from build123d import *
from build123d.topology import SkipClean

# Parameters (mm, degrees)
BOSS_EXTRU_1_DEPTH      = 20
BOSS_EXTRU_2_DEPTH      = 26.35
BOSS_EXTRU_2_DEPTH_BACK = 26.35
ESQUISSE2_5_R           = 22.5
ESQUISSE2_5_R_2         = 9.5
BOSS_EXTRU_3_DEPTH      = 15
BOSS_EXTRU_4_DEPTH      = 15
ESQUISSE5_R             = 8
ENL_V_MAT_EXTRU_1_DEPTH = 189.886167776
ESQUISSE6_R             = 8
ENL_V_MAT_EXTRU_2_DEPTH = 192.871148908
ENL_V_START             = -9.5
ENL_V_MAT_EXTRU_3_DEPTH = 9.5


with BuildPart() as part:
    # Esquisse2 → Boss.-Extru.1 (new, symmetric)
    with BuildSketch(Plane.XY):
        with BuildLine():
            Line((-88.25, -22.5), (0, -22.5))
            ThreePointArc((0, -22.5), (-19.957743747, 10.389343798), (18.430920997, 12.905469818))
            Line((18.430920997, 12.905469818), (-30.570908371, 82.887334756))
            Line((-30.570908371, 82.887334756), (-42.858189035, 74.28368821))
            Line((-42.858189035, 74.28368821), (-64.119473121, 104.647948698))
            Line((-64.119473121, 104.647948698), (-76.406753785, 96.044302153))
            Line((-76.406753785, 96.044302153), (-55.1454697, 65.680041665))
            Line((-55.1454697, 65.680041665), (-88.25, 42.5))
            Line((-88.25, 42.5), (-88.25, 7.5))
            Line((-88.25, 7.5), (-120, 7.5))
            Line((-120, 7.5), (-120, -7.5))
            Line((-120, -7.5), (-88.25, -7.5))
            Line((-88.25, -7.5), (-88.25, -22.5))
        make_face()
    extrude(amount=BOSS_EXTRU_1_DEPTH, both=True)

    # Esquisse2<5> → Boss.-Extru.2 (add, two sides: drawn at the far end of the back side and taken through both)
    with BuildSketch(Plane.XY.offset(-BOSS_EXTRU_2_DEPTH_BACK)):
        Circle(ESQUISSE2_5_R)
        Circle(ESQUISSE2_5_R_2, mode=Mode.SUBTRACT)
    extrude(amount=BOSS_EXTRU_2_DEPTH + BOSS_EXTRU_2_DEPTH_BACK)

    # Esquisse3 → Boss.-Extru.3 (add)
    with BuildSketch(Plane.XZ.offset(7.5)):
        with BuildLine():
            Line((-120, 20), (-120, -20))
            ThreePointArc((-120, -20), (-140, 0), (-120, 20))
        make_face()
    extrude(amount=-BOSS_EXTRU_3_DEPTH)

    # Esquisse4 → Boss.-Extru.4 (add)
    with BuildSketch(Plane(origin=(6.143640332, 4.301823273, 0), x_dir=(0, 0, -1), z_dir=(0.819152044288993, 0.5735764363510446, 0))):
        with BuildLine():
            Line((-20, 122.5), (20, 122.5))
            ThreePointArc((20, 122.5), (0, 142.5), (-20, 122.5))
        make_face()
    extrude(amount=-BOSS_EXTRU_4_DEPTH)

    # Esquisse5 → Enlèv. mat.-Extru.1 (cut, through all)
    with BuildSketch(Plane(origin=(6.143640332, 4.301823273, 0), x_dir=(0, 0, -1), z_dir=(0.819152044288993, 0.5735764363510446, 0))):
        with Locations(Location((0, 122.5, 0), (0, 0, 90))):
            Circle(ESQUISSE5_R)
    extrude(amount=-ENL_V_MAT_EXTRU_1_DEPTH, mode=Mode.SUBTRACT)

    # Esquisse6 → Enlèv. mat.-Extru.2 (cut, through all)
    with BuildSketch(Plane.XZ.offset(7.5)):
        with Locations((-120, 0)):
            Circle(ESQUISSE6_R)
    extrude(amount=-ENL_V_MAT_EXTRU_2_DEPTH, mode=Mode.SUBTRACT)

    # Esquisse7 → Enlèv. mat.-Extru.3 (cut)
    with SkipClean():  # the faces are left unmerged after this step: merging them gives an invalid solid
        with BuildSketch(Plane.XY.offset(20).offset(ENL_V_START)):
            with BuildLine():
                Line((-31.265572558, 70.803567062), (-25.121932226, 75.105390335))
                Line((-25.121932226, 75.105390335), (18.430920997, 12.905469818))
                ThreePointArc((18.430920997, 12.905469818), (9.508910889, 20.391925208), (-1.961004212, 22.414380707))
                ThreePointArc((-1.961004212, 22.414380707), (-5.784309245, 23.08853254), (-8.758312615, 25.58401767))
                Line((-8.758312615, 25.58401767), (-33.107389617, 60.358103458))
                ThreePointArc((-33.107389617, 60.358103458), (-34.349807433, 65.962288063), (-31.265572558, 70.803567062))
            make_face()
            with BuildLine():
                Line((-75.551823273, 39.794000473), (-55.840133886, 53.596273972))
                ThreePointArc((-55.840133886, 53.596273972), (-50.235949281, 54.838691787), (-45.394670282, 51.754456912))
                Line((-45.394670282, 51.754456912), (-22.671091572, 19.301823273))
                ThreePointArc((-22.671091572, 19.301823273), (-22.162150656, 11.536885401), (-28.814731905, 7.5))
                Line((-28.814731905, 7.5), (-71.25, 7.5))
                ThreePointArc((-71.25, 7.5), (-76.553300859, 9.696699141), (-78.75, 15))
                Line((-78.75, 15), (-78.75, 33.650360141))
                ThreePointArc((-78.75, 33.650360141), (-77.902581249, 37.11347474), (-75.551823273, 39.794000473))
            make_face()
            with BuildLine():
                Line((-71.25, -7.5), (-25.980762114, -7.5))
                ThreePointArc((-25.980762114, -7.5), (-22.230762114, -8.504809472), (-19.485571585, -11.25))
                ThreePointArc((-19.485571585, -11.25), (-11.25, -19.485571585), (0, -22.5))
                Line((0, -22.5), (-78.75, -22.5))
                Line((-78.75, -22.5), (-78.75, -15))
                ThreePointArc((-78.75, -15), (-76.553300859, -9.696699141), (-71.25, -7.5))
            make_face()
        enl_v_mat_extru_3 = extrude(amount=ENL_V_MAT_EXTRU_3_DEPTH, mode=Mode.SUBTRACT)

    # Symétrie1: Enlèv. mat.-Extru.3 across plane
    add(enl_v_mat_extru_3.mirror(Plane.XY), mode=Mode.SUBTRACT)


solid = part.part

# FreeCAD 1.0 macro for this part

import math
import FreeCAD as App
import Part
import Sketcher
Q = App.Units.Quantity

doc = App.newDocument("Part")
params = doc.addObject("Spreadsheet::Sheet", "Params")
for row, (alias, value) in enumerate([
    ("sketch1_radius", "22.5 mm"),
    ("sketch1_height", "35 mm"),
    ("sketch1_length", "15 mm"),
    ("sketch1_width", "88.25 mm"),
    ("pad1_length", "40 mm"),
    ("sketch2_diameter", "45 mm"),
    ("sketch2_diameter2", "19 mm"),
    ("pad2_length", "26.35 mm"),
    ("pad2_length2", "26.35 mm"),
    ("sketch3_radius", "20 mm"),
    ("pad3_length", "15 mm"),
    ("sketch4_radius", "20 mm"),
    ("pad4_length", "15 mm"),
    ("sketch5_diameter", "16 mm"),
    ("sketch6_diameter", "16 mm"),
    ("sketch7_radius", "7.5 mm"),
    ("sketch7_radius2", "22.5 mm"),
    ("sketch7_height", "7.5 mm"),
    ("sketch7_length", "7.5 mm"),
    ("sketch7_width", "78.75 mm"),
    ("pocket3_length", "9.5 mm"),
], start=1):
    params.set(f"A{row}", alias)
    params.set(f"B{row}", "=" + value)
    params.setAlias(f"B{row}", alias)

body = doc.addObject("PartDesign::Body", "Body")

sketch1 = body.newObject("Sketcher::SketchObject", "Sketch")
sketch1.AttachmentSupport = (doc.getObject("XY_Plane"), [""])
sketch1.MapMode = "FlatFace"
sketch1.addGeometry([
    Part.LineSegment(App.Vector(-88, -22, 0), App.Vector(0, -22, 0)),
    Part.ArcOfCircle(Part.Circle(App.Vector(0, 0, 0), App.Vector(0, 0, 1), 22), math.radians(35), math.radians(270)),
    Part.LineSegment(App.Vector(18, 13, 0), App.Vector(-31, 83, 0)),
    Part.LineSegment(App.Vector(-31, 83, 0), App.Vector(-43, 74, 0)),
    Part.LineSegment(App.Vector(-43, 74, 0), App.Vector(-64, 105, 0)),
    Part.LineSegment(App.Vector(-64, 105, 0), App.Vector(-76, 96, 0)),
    Part.LineSegment(App.Vector(-76, 96, 0), App.Vector(-55, 66, 0)),
    Part.LineSegment(App.Vector(-55, 66, 0), App.Vector(-88, 42, 0)),
    Part.LineSegment(App.Vector(-88, 42, 0), App.Vector(-88, 8, 0)),
    Part.LineSegment(App.Vector(-88, 8, 0), App.Vector(-120, 8, 0)),
    Part.LineSegment(App.Vector(-120, 8, 0), App.Vector(-120, -8, 0)),
    Part.LineSegment(App.Vector(-120, -8, 0), App.Vector(-88, -8, 0)),
    Part.LineSegment(App.Vector(-88, -8, 0), App.Vector(-88, -22, 0)),
], False)
sketch1.addConstraint([
    Sketcher.Constraint("Tangent", 0, 2, 1, 2),
    Sketcher.Constraint("Tangent", 1, 1, 2, 1),
    Sketcher.Constraint("Coincident", 2, 2, 3, 1),
    Sketcher.Constraint("Coincident", 3, 2, 4, 1),
    Sketcher.Constraint("Coincident", 4, 2, 5, 1),
    Sketcher.Constraint("Coincident", 5, 2, 6, 1),
    Sketcher.Constraint("Coincident", 6, 2, 7, 1),
    Sketcher.Constraint("Coincident", 7, 2, 8, 1),
    Sketcher.Constraint("Coincident", 8, 2, 9, 1),
    Sketcher.Constraint("Coincident", 9, 2, 10, 1),
    Sketcher.Constraint("Coincident", 10, 2, 11, 1),
    Sketcher.Constraint("Coincident", 11, 2, 12, 1),
    Sketcher.Constraint("Coincident", 12, 2, 0, 1),
    Sketcher.Constraint("Horizontal", 0),
    Sketcher.Constraint("Vertical", 8),
    Sketcher.Constraint("Horizontal", 9),
    Sketcher.Constraint("Vertical", 10),
    Sketcher.Constraint("Horizontal", 11),
    Sketcher.Constraint("Vertical", 12),
    Sketcher.Constraint("Coincident", 1, 3, -1, 1),
    Sketcher.Constraint("Symmetric", 8, 2, 11, 2, -1),
    Sketcher.Constraint("Perpendicular", 2, 3),
    Sketcher.Constraint("Perpendicular", 3, 4),
    Sketcher.Constraint("Perpendicular", 4, 5),
    Sketcher.Constraint("Perpendicular", 5, 6),
    Sketcher.Constraint("Perpendicular", 6, 7),
    Sketcher.Constraint("Equal", 10, 12),
    Sketcher.Constraint("Equal", 3, 5),
    Sketcher.Constraint("Equal", 4, 6),
    Sketcher.Constraint("Radius", 1, Q("22.5 mm")),
    Sketcher.Constraint("DistanceY", 8, 2, 8, 1, Q("35 mm")),
    Sketcher.Constraint("Angle", 2, Q("125 deg")),
    Sketcher.Constraint("Distance", 3, Q("15 mm")),
    Sketcher.Constraint("DistanceX", 9, 2, -1, 1, Q("120 mm")),
    Sketcher.Constraint("DistanceX", 0, 1, 0, 2, Q("88.25 mm")),
    Sketcher.Constraint("DistanceY", -1, 1, 4, 2, Q("104.647949 mm")),
])
sketch1.setExpression("Constraints[29]", "Params.sketch1_radius")
sketch1.setExpression("Constraints[30]", "Params.sketch1_height")
sketch1.setExpression("Constraints[32]", "Params.sketch1_length")
sketch1.setExpression("Constraints[34]", "Params.sketch1_width")
pad1 = body.newObject("PartDesign::Pad", "Pad")
pad1.Profile = sketch1
pad1.setExpression("Length", "Params.pad1_length")
pad1.Midplane = True

sketch2 = body.newObject("Sketcher::SketchObject", "Sketch001")
sketch2.AttachmentSupport = (doc.getObject("XY_Plane"), [""])
sketch2.MapMode = "FlatFace"
sketch2.addGeometry([
    Part.Circle(App.Vector(0, 0, 0), App.Vector(0, 0, 1), 22),
    Part.Circle(App.Vector(0, 0, 0), App.Vector(0, 0, 1), 10),
], False)
sketch2.addConstraint([
    Sketcher.Constraint("Coincident", 0, 3, -1, 1),
    Sketcher.Constraint("Coincident", 1, 3, -1, 1),
    Sketcher.Constraint("Diameter", 0, Q("45 mm")),
    Sketcher.Constraint("Diameter", 1, Q("19 mm")),
])
sketch2.setExpression("Constraints[2]", "Params.sketch2_diameter")
sketch2.setExpression("Constraints[3]", "Params.sketch2_diameter2")
pad2 = body.newObject("PartDesign::Pad", "Pad001")
pad2.Profile = sketch2
pad2.Type = "TwoLengths"
pad2.setExpression("Length", "Params.pad2_length")
pad2.setExpression("Length2", "Params.pad2_length2")

sketch3 = body.newObject("Sketcher::SketchObject", "Sketch002")
sketch3.AttachmentSupport = (doc.getObject("XZ_Plane"), [""])
sketch3.MapMode = "FlatFace"
sketch3.AttachmentOffset = App.Placement(App.Vector(0, 0, 7.5), App.Rotation())
sketch3.addGeometry([
    Part.LineSegment(App.Vector(-120, -20, 0), App.Vector(-120, 20, 0)),
    Part.ArcOfCircle(Part.Circle(App.Vector(-120, 0, 0), App.Vector(0, 0, 1), 20), math.radians(90), math.radians(270)),
], False)
sketch3.addConstraint([
    Sketcher.Constraint("Coincident", 0, 1, 1, 2),
    Sketcher.Constraint("Coincident", 1, 1, 0, 2),
    Sketcher.Constraint("Vertical", 0),
    Sketcher.Constraint("PointOnObject", 1, 3, -1),
    Sketcher.Constraint("Vertical", 1, 3, 0, 1),
    Sketcher.Constraint("Radius", 1, Q("20 mm")),
    Sketcher.Constraint("DistanceX", 1, 3, -1, 1, Q("120 mm")),
])
sketch3.setExpression("Constraints[5]", "Params.sketch3_radius")
pad3 = body.newObject("PartDesign::Pad", "Pad002")
pad3.Profile = sketch3
pad3.setExpression("Length", "Params.pad3_length")
pad3.Reversed = True

sketch4 = body.newObject("Sketcher::SketchObject", "Sketch003")
sketch4.Placement = App.Placement(App.Vector(6.14364, 4.301823, 0), App.Rotation(App.Vector(0, 0, -1), App.Vector(-0.573576436, 0.819152044, 0), App.Vector(0.819152044, 0.573576436, 0), "ZXY"))
sketch4.addGeometry([
    Part.LineSegment(App.Vector(-20, 122, 0), App.Vector(20, 122, 0)),
    Part.ArcOfCircle(Part.Circle(App.Vector(0, 122, 0), App.Vector(0, 0, 1), 20), math.radians(0), math.radians(180)),
], False)
sketch4.addConstraint([
    Sketcher.Constraint("Coincident", 0, 1, 1, 2),
    Sketcher.Constraint("Coincident", 1, 1, 0, 2),
    Sketcher.Constraint("Horizontal", 0),
    Sketcher.Constraint("PointOnObject", 1, 3, -2),
    Sketcher.Constraint("Horizontal", 1, 3, 0, 1),
    Sketcher.Constraint("Radius", 1, Q("20 mm")),
    Sketcher.Constraint("DistanceY", -1, 1, 1, 3, Q("122.5 mm")),
])
sketch4.setExpression("Constraints[5]", "Params.sketch4_radius")
pad4 = body.newObject("PartDesign::Pad", "Pad003")
pad4.Profile = sketch4
pad4.setExpression("Length", "Params.pad4_length")
pad4.Reversed = True

sketch5 = body.newObject("Sketcher::SketchObject", "Sketch004")
sketch5.Placement = App.Placement(App.Vector(6.14364, 4.301823, 0), App.Rotation(App.Vector(0, 0, -1), App.Vector(-0.573576436, 0.819152044, 0), App.Vector(0.819152044, 0.573576436, 0), "ZXY"))
sketch5.addGeometry(Part.Circle(App.Vector(0, 122, 0), App.Vector(0, 0, 1), 8), False)
sketch5.addConstraint([
    Sketcher.Constraint("PointOnObject", 0, 3, -2),
    Sketcher.Constraint("Diameter", 0, Q("16 mm")),
    Sketcher.Constraint("DistanceY", -1, 1, 0, 3, Q("122.5 mm")),
])
sketch5.setExpression("Constraints[1]", "Params.sketch5_diameter")
pocket1 = body.newObject("PartDesign::Pocket", "Pocket")
pocket1.Profile = sketch5
pocket1.Type = "ThroughAll"

sketch6 = body.newObject("Sketcher::SketchObject", "Sketch005")
sketch6.AttachmentSupport = (doc.getObject("XZ_Plane"), [""])
sketch6.MapMode = "FlatFace"
sketch6.AttachmentOffset = App.Placement(App.Vector(0, 0, 7.5), App.Rotation())
sketch6.addGeometry(Part.Circle(App.Vector(-120, 0, 0), App.Vector(0, 0, 1), 8), False)
sketch6.addConstraint([
    Sketcher.Constraint("PointOnObject", 0, 3, -1),
    Sketcher.Constraint("Diameter", 0, Q("16 mm")),
    Sketcher.Constraint("DistanceX", 0, 3, -1, 1, Q("120 mm")),
])
sketch6.setExpression("Constraints[1]", "Params.sketch6_diameter")
pocket2 = body.newObject("PartDesign::Pocket", "Pocket001")
pocket2.Profile = sketch6
pocket2.Type = "ThroughAll"

sketch7 = body.newObject("Sketcher::SketchObject", "Sketch006")
sketch7.AttachmentSupport = (doc.getObject("XY_Plane"), [""])
sketch7.MapMode = "FlatFace"
sketch7.AttachmentOffset = App.Placement(App.Vector(0, 0, 10.5), App.Rotation())
sketch7.addGeometry([
    Part.LineSegment(App.Vector(-25, 75, 0), App.Vector(-31, 71, 0)),
    Part.ArcOfCircle(Part.Circle(App.Vector(-27, 65, 0), App.Vector(0, 0, 1), 7), math.radians(125), math.radians(215)),
    Part.LineSegment(App.Vector(-33, 60, 0), App.Vector(-9, 26, 0)),
    Part.ArcOfCircle(Part.Circle(App.Vector(-3, 30, 0), App.Vector(0, 0, 1), 8), math.radians(-145), math.radians(-85)),
    Part.ArcOfCircle(Part.Circle(App.Vector(0, 0, 0), App.Vector(0, 0, 1), 23), math.radians(35), math.radians(95)),
    Part.LineSegment(App.Vector(18, 13, 0), App.Vector(-25, 75, 0)),
    Part.LineSegment(App.Vector(-56, 54, 0), App.Vector(-76, 40, 0)),
    Part.ArcOfCircle(Part.Circle(App.Vector(-71, 34, 0), App.Vector(0, 0, 1), 8), math.radians(125), math.radians(180)),
    Part.LineSegment(App.Vector(-79, 34, 0), App.Vector(-79, 15, 0)),
    Part.ArcOfCircle(Part.Circle(App.Vector(-71, 15, 0), App.Vector(0, 0, 1), 8), math.radians(180), math.radians(270)),
    Part.LineSegment(App.Vector(-71, 8, 0), App.Vector(-29, 8, 0)),
    Part.ArcOfCircle(Part.Circle(App.Vector(-29, 15, 0), App.Vector(0, 0, 1), 8), math.radians(-90), math.radians(35)),
    Part.LineSegment(App.Vector(-23, 19, 0), App.Vector(-45, 52, 0)),
    Part.ArcOfCircle(Part.Circle(App.Vector(-52, 47, 0), App.Vector(0, 0, 1), 7), math.radians(35), math.radians(125)),
    Part.LineSegment(App.Vector(-26, -8, 0), App.Vector(-71, -8, 0)),
    Part.ArcOfCircle(Part.Circle(App.Vector(-71, -15, 0), App.Vector(0, 0, 1), 8), math.radians(90), math.radians(180)),
    Part.LineSegment(App.Vector(-79, -15, 0), App.Vector(-79, -22, 0)),
    Part.LineSegment(App.Vector(-79, -22, 0), App.Vector(0, -22, 0)),
    Part.ArcOfCircle(Part.Circle(App.Vector(0, 0, 0), App.Vector(0, 0, 1), 22), math.radians(-150), math.radians(-90)),
    Part.ArcOfCircle(Part.Circle(App.Vector(-26, -15, 0), App.Vector(0, 0, 1), 8), math.radians(30), math.radians(90)),
], False)
sketch7.addConstraint([
    Sketcher.Constraint("Tangent", 0, 2, 1, 1),
    Sketcher.Constraint("Tangent", 1, 2, 2, 1),
    Sketcher.Constraint("Tangent", 2, 2, 3, 1),
    Sketcher.Constraint("Tangent", 3, 2, 4, 2),
    Sketcher.Constraint("Tangent", 4, 1, 5, 1),
    Sketcher.Constraint("Coincident", 5, 2, 0, 1),
    Sketcher.Constraint("Tangent", 6, 2, 7, 1),
    Sketcher.Constraint("Tangent", 7, 2, 8, 1),
    Sketcher.Constraint("Tangent", 8, 2, 9, 1),
    Sketcher.Constraint("Tangent", 9, 2, 10, 1),
    Sketcher.Constraint("Tangent", 10, 2, 11, 1),
    Sketcher.Constraint("Tangent", 11, 2, 12, 1),
    Sketcher.Constraint("Tangent", 12, 2, 13, 1),
    Sketcher.Constraint("Tangent", 13, 2, 6, 1),
    Sketcher.Constraint("Tangent", 14, 2, 15, 1),
    Sketcher.Constraint("Tangent", 15, 2, 16, 1),
    Sketcher.Constraint("Coincident", 16, 2, 17, 1),
    Sketcher.Constraint("Tangent", 17, 2, 18, 2),
    Sketcher.Constraint("Tangent", 18, 1, 19, 1),
    Sketcher.Constraint("Tangent", 19, 2, 14, 1),
    Sketcher.Constraint("Vertical", 8),
    Sketcher.Constraint("Horizontal", 10),
    Sketcher.Constraint("Horizontal", 14),
    Sketcher.Constraint("Vertical", 16),
    Sketcher.Constraint("Horizontal", 17),
    Sketcher.Constraint("Coincident", 4, 3, -1, 1),
    Sketcher.Constraint("Coincident", 18, 3, -1, 1),
    Sketcher.Constraint("Equal", 1, 3),
    Sketcher.Constraint("Equal", 3, 7),
    Sketcher.Constraint("Equal", 7, 9),
    Sketcher.Constraint("Equal", 9, 11),
    Sketcher.Constraint("Equal", 11, 13),
    Sketcher.Constraint("Equal", 13, 15),
    Sketcher.Constraint("Equal", 4, 18),
    Sketcher.Constraint("Equal", 15, 19),
    Sketcher.Constraint("Symmetric", 9, 3, 15, 3, -1),
    Sketcher.Constraint("Perpendicular", 0, 2),
    Sketcher.Constraint("Parallel", 2, 5),
    Sketcher.Constraint("Perpendicular", 5, 6),
    Sketcher.Constraint("Perpendicular", 6, 12),
    Sketcher.Constraint("Radius", 1, Q("7.5 mm")),
    Sketcher.Constraint("Radius", 4, Q("22.5 mm")),
    Sketcher.Constraint("Angle", 0, Q("-145 deg")),
    Sketcher.Constraint("DistanceY", 16, 2, 16, 1, Q("7.5 mm")),
    Sketcher.Constraint("Distance", 0, Q("7.5 mm")),
    Sketcher.Constraint("DistanceX", 17, 1, 17, 2, Q("78.75 mm")),
    Sketcher.Constraint("DistanceY", -1, 1, 6, 2, Q("39.794 mm")),
    Sketcher.Constraint("DistanceX", 10, 1, 10, 2, Q("42.435268 mm")),
    Sketcher.Constraint("DistanceX", 0, 2, 3, 3, Q("28.6509 mm")),
])
sketch7.setExpression("Constraints[40]", "Params.sketch7_radius")
sketch7.setExpression("Constraints[41]", "Params.sketch7_radius2")
sketch7.setExpression("Constraints[43]", "Params.sketch7_height")
sketch7.setExpression("Constraints[44]", "Params.sketch7_length")
sketch7.setExpression("Constraints[45]", "Params.sketch7_width")
pocket3 = body.newObject("PartDesign::Pocket", "Pocket002")
pocket3.Profile = sketch7
pocket3.setExpression("Length", "Params.pocket3_length")
pocket3.Reversed = True
doc.recompute()

mirrored = body.newObject("PartDesign::Mirrored", "Mirrored")
mirrored.Originals = [pocket3]
mirrored.MirrorPlane = (doc.getObject("XY_Plane"), [""])
body.Tip = mirrored

doc.recompute()
